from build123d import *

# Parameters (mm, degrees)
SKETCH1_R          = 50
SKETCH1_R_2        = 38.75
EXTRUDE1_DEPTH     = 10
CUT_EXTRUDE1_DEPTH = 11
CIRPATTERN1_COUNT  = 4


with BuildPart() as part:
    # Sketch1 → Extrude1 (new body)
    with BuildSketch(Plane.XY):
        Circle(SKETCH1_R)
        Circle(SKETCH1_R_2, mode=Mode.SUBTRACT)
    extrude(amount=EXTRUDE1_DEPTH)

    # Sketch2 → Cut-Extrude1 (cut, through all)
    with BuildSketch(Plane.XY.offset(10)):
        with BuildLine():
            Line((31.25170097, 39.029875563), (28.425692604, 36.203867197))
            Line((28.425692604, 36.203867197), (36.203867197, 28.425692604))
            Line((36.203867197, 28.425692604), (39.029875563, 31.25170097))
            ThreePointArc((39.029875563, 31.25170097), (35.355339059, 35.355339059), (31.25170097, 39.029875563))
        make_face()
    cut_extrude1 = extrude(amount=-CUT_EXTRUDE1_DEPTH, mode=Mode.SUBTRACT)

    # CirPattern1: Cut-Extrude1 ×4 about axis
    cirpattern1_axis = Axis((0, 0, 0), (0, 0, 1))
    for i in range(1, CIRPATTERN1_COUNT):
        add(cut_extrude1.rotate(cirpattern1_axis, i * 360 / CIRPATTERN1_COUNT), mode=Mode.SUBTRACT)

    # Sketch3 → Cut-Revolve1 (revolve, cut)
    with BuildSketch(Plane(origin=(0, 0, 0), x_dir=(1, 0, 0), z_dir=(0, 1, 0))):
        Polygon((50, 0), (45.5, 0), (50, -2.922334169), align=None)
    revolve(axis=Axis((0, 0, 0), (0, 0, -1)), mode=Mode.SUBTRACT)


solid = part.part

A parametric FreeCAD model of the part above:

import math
import FreeCAD as App
import Part
import Sketcher
Q = App.Units.Quantity

doc = App.newDocument("Part")
body = doc.addObject("PartDesign::Body", "Body")

# Sketch on XY plane
sketch1 = body.newObject("Sketcher::SketchObject", "Sketch")
sketch1.AttachmentSupport = (doc.getObject("XY_Plane"), [""])
sketch1.MapMode = "FlatFace"
sketch1.addGeometry(Part.Circle(App.Vector(0, 0, 0), App.Vector(0, 0, 1), 50), False)
sketch1.addGeometry(Part.Circle(App.Vector(0, 0, 0), App.Vector(0, 0, 1), 39), False)
sketch1.addConstraint(Sketcher.Constraint("Coincident", 0, 3, -1, 1))
sketch1.addConstraint(Sketcher.Constraint("Coincident", 1, 3, -1, 1))
sketch1.addConstraint(Sketcher.Constraint("Diameter", 0, 100.0))
sketch1.addConstraint(Sketcher.Constraint("Diameter", 1, 77.5))
pad1 = body.newObject("PartDesign::Pad", "Pad")
pad1.Profile = sketch1
pad1.Length = 10

# Sketch on XY plane
sketch2 = body.newObject("Sketcher::SketchObject", "Sketch001")
sketch2.AttachmentSupport = (doc.getObject("XY_Plane"), [""])
sketch2.MapMode = "FlatFace"
sketch2.AttachmentOffset = App.Placement(App.Vector(0, 0, 10), App.Rotation())
sketch2.addGeometry(Part.LineSegment(App.Vector(31.3, 39, 0), App.Vector(28.4, 36.2, 0)), False)
sketch2.addGeometry(Part.LineSegment(App.Vector(28.4, 36.2, 0), App.Vector(36.2, 28.4, 0)), False)
sketch2.addGeometry(Part.LineSegment(App.Vector(36.2, 28.4, 0), App.Vector(39, 31.3, 0)), False)
sketch2.addGeometry(Part.ArcOfCircle(Part.Circle(App.Vector(0, 0, 0), App.Vector(0, 0, 1), 50), math.radians(38.68), math.radians(51.32)), False)
sketch2.addConstraint(Sketcher.Constraint("Coincident", 0, 2, 1, 1))
sketch2.addConstraint(Sketcher.Constraint("Coincident", 1, 2, 2, 1))
sketch2.addConstraint(Sketcher.Constraint("Coincident", 2, 2, 3, 1))
sketch2.addConstraint(Sketcher.Constraint("Coincident", 3, 2, 0, 1))
sketch2.addConstraint(Sketcher.Constraint("Coincident", 3, 3, -1, 1))
sketch2.addConstraint(Sketcher.Constraint("Perpendicular", 0, 1))
sketch2.addConstraint(Sketcher.Constraint("Perpendicular", 1, 2))
sketch2.addConstraint(Sketcher.Constraint("Equal", 0, 2))
sketch2.addConstraint(Sketcher.Constraint("Radius", 3, 50.0))
sketch2.addConstraint(Sketcher.Constraint("Angle", 0, Q("-135 deg")))
sketch2.addConstraint(Sketcher.Constraint("Distance", 1, 11.0))
sketch2.addConstraint(Sketcher.Constraint("Distance", 0, 3.996579))
pocket1 = body.newObject("PartDesign::Pocket", "Pocket")
pocket1.Profile = sketch2
pocket1.Type = "ThroughAll"
doc.recompute()

polarpattern = body.newObject("PartDesign::PolarPattern", "PolarPattern")
polarpattern.Originals = [pocket1]
polarpattern.Axis = (doc.getObject("Z_Axis"), [""])
polarpattern.Angle = 360
polarpattern.Occurrences = 4
body.Tip = polarpattern

# Sketch on XZ plane
sketch3 = body.newObject("Sketcher::SketchObject", "Sketch002")
sketch3.AttachmentSupport = (doc.getObject("XZ_Plane"), [""])
sketch3.MapMode = "FlatFace"
sketch3.addGeometry(Part.LineSegment(App.Vector(50, 0, 0), App.Vector(45.5, 0, 0)), False)
sketch3.addGeometry(Part.LineSegment(App.Vector(45.5, 0, 0), App.Vector(50, 2.9, 0)), False)
sketch3.addGeometry(Part.LineSegment(App.Vector(50, 2.9, 0), App.Vector(50, 0, 0)), False)
sketch3.addConstraint(Sketcher.Constraint("Coincident", 0, 2, 1, 1))
sketch3.addConstraint(Sketcher.Constraint("Coincident", 1, 2, 2, 1))
sketch3.addConstraint(Sketcher.Constraint("Coincident", 2, 2, 0, 1))
sketch3.addConstraint(Sketcher.Constraint("Horizontal", 0))
sketch3.addConstraint(Sketcher.Constraint("Vertical", 2))
sketch3.addConstraint(Sketcher.Constraint("PointOnObject", 0, 2, -1))
sketch3.addConstraint(Sketcher.Constraint("Angle", 1, Q("33 deg")))
sketch3.addConstraint(Sketcher.Constraint("DistanceX", 0, 2, 0, 1, 4.5))
sketch3.addConstraint(Sketcher.Constraint("DistanceX", -1, 1, 1, 2, 50.0))
groove = body.newObject("PartDesign::Groove", "Groove")
groove.Profile = sketch3
groove.ReferenceAxis = (sketch3, ["V_Axis"])
groove.Angle = 360

doc.recompute()
